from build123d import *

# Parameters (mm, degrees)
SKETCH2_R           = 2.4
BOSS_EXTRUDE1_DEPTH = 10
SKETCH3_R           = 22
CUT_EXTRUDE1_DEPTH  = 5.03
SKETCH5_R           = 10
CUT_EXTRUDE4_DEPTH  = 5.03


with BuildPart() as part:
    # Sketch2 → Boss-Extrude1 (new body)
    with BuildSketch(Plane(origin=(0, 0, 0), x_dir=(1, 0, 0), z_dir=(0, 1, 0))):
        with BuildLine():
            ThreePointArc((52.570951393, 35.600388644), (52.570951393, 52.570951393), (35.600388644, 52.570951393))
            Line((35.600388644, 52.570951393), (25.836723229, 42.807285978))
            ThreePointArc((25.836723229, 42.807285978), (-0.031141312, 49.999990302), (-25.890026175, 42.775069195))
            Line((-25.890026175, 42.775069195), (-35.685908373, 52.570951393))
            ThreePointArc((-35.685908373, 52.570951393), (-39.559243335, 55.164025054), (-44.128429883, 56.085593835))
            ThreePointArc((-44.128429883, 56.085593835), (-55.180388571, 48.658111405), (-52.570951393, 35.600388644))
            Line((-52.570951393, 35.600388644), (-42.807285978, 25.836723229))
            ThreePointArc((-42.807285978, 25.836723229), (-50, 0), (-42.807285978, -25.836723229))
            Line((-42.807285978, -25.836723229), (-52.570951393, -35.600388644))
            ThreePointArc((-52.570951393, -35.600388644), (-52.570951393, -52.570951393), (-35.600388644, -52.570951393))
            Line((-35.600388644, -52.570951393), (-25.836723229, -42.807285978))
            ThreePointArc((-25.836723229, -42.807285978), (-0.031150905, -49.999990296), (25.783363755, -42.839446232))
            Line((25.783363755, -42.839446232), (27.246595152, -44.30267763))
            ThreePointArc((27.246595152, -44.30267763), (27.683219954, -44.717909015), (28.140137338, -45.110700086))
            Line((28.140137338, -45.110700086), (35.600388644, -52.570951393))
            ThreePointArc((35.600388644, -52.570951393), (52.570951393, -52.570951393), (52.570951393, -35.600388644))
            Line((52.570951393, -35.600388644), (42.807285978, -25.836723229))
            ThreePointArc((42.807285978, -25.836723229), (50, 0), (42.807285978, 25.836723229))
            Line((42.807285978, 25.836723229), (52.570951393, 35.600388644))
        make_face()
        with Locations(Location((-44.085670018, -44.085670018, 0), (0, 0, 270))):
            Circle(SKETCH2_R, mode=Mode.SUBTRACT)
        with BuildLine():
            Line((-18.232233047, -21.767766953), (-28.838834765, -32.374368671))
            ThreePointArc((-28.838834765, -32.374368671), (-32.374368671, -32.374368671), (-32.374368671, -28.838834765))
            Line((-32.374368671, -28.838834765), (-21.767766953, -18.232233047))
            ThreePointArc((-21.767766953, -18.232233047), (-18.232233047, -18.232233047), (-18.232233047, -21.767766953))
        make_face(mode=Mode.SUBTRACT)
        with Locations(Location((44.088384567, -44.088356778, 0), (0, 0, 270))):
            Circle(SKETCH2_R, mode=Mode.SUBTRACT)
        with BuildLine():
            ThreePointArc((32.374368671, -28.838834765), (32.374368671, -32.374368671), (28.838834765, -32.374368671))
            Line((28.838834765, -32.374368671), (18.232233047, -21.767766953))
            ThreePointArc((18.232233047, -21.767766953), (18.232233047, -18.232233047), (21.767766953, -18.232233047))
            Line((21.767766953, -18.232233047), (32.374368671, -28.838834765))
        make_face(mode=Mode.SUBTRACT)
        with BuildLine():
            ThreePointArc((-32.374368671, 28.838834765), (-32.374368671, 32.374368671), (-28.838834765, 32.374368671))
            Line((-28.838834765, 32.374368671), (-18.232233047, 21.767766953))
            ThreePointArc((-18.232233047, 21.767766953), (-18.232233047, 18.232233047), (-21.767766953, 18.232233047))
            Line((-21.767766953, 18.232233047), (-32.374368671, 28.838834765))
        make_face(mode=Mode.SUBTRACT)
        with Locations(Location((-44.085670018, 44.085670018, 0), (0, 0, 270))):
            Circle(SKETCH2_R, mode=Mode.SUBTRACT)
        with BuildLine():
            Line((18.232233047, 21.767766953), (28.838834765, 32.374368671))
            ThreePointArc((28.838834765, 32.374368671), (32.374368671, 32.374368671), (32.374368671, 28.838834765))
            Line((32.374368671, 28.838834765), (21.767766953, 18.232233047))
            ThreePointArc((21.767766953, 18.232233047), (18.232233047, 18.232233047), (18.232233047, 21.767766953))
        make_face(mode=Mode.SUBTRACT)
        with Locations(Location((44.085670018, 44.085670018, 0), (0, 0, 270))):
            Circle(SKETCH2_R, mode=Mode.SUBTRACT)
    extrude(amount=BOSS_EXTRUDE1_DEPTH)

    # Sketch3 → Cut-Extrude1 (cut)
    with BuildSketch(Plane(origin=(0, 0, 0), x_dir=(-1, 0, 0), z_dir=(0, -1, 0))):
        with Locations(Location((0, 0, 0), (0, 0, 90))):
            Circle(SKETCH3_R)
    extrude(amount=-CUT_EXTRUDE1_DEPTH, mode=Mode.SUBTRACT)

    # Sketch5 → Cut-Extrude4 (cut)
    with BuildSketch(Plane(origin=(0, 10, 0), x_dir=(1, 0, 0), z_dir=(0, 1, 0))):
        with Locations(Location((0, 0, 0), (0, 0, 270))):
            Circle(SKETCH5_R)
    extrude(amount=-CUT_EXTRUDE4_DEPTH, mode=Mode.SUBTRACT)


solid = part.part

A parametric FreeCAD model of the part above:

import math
import FreeCAD as App
import Part
import Sketcher
from FreeCAD import Vector
Q = App.Units.Quantity

doc = App.newDocument("Part")
params = doc.addObject("Spreadsheet::Sheet", "Params")
for row, (alias, value) in enumerate([
    ("sketch1_radius", "12 mm"),
    ("sketch1_radius2", "50 mm"),
    ("sketch1_diameter", "4.8 mm"),
    ("sketch1_radius3", "2.5 mm"),
    ("sketch1_length", "15 mm"),
    ("pad1_length", "10 mm"),
    ("sketch2_diameter", "44 mm"),
    ("pocket1_length", "5.03 mm"),
    ("sketch3_diameter", "20 mm"),
    ("pocket2_length", "5.03 mm"),
], start=1):
    params.set(f"A{row}", alias)
    params.set(f"B{row}", "=" + value)
    params.setAlias(f"B{row}", alias)

body = doc.addObject("PartDesign::Body", "Body")

# Sketch on XZ plane
sketch1 = doc.addObject("Sketcher::SketchObject", "Sketch")
body.addObject(sketch1)
sketch1.AttachmentSupport = (doc.XZ_Plane, [""])
sketch1.MapMode = "FlatFace"
sketch1.addGeometry([
    Part.ArcOfCircle(Part.Circle(Vector(44.08567, -44.08567, 0), Vector(0, 0, 1), 12), math.radians(-135), math.radians(45)),  # 0
    Part.LineSegment(Vector(35.600389, -52.570951, 0), Vector(25.836723, -42.807286, 0)),  # 1
    Part.ArcOfCircle(Part.Circle(Vector(0, 0, 0), Vector(0, 0, 1), 50), math.radians(-121.18483), math.radians(-58.88654)),  # 2
    Part.LineSegment(Vector(-25.890026, -42.775069, 0), Vector(-35.685908, -52.570951, 0)),  # 3
    Part.ArcOfCircle(Part.Circle(Vector(-44.17119, -44.08567, 0), Vector(0, 0, 1), 12), math.radians(-89.795836), math.radians(-45)),  # 4
    Part.ArcOfCircle(Part.Circle(Vector(-44.08567, -44.08567, 0), Vector(0, 0, 1), 12), math.radians(135), math.radians(269.795836)),  # 5
    Part.LineSegment(Vector(-52.570951, -35.600389, 0), Vector(-42.807286, -25.836723, 0)),  # 6
    Part.ArcOfCircle(Part.Circle(Vector(0, 0, 0), Vector(0, 0, 1), 50), math.radians(148.88654), math.radians(211.11346)),  # 7
    Part.LineSegment(Vector(-42.807286, 25.836723, 0), Vector(-52.570951, 35.600389, 0)),  # 8
    Part.ArcOfCircle(Part.Circle(Vector(-44.08567, 44.08567, 0), Vector(0, 0, 1), 12), math.radians(45), math.radians(225)),  # 9
    Part.LineSegment(Vector(-35.600389, 52.570951, 0), Vector(-25.836723, 42.807286, 0)),  # 10
    Part.ArcOfCircle(Part.Circle(Vector(0, 0, 0), Vector(0, 0, 1), 50), math.radians(58.957933), math.radians(121.11346)),  # 11
    Part.LineSegment(Vector(25.783364, 42.839446, 0), Vector(27.246595, 44.302678, 0)),  # 12
    Part.ArcOfCircle(Part.Circle(Vector(35.731876, 35.817396, 0), Vector(0, 0, 1), 12), math.radians(129.245531), math.radians(135)),  # 13
    Part.LineSegment(Vector(28.140137, 45.1107, 0), Vector(35.600389, 52.570951, 0)),  # 14
    Part.ArcOfCircle(Part.Circle(Vector(44.08567, 44.08567, 0), Vector(0, 0, 1), 12), math.radians(-45), math.radians(135)),  # 15
    Part.LineSegment(Vector(52.570951, 35.600389, 0), Vector(42.807286, 25.836723, 0)),  # 16
    Part.ArcOfCircle(Part.Circle(Vector(0, 0, 0), Vector(0, 0, 1), 50), math.radians(-31.11346), math.radians(31.11346)),  # 17
    Part.LineSegment(Vector(42.807286, -25.836723, 0), Vector(52.570951, -35.600389, 0)),  # 18
    Part.Circle(Vector(-44.08567, 44.08567, 0), Vector(0, 0, 1), 2.4),  # 19
    Part.ArcOfCircle(Part.Circle(Vector(-20, 20, 0), Vector(0, 0, 1), 2.5), math.radians(-135), math.radians(45)),  # 20
    Part.LineSegment(Vector(-18.232233, 21.767767, 0), Vector(-28.838835, 32.374369, 0)),  # 21
    Part.ArcOfCircle(Part.Circle(Vector(-30.606602, 30.606602, 0), Vector(0, 0, 1), 2.5), math.radians(45), math.radians(225)),  # 22
    Part.LineSegment(Vector(-32.374369, 28.838835, 0), Vector(-21.767767, 18.232233, 0)),  # 23
    Part.Circle(Vector(44.088385, 44.088357, 0), Vector(0, 0, 1), 2.4),  # 24
    Part.LineSegment(Vector(21.767767, 18.232233, 0), Vector(32.374369, 28.838835, 0)),  # 25
    Part.ArcOfCircle(Part.Circle(Vector(30.606602, 30.606602, 0), Vector(0, 0, 1), 2.5), math.radians(-45), math.radians(135)),  # 26
    Part.LineSegment(Vector(28.838835, 32.374369, 0), Vector(18.232233, 21.767767, 0)),  # 27
    Part.ArcOfCircle(Part.Circle(Vector(20, 20, 0), Vector(0, 0, 1), 2.5), math.radians(135), math.radians(315)),  # 28
    Part.LineSegment(Vector(-21.767767, -18.232233, 0), Vector(-32.374369, -28.838835, 0)),  # 29
    Part.ArcOfCircle(Part.Circle(Vector(-30.606602, -30.606602, 0), Vector(0, 0, 1), 2.5), math.radians(135), math.radians(315)),  # 30
    Part.LineSegment(Vector(-28.838835, -32.374369, 0), Vector(-18.232233, -21.767767, 0)),  # 31
    Part.ArcOfCircle(Part.Circle(Vector(-20, -20, 0), Vector(0, 0, 1), 2.5), math.radians(-45), math.radians(135)),  # 32
    Part.Circle(Vector(-44.08567, -44.08567, 0), Vector(0, 0, 1), 2.4),  # 33
    Part.ArcOfCircle(Part.Circle(Vector(20, -20, 0), Vector(0, 0, 1), 2.5), math.radians(45), math.radians(225)),  # 34
    Part.LineSegment(Vector(18.232233, -21.767767, 0), Vector(28.838835, -32.374369, 0)),  # 35
    Part.ArcOfCircle(Part.Circle(Vector(30.606602, -30.606602, 0), Vector(0, 0, 1), 2.5), math.radians(-135), math.radians(45)),  # 36
    Part.LineSegment(Vector(32.374369, -28.838835, 0), Vector(21.767767, -18.232233, 0)),  # 37
    Part.Circle(Vector(44.08567, -44.08567, 0), Vector(0, 0, 1), 2.4),  # 38
], False)
sketch1.addConstraint([
    Sketcher.Constraint("Tangent", 0, 1, 1, 1),
    Sketcher.Constraint("Coincident", 1, 2, 2, 2),
    Sketcher.Constraint("Coincident", 2, 1, 3, 1),
    Sketcher.Constraint("Tangent", 3, 2, 4, 2),
    Sketcher.Constraint("Coincident", 4, 1, 5, 2),
    Sketcher.Constraint("Tangent", 5, 1, 6, 1),
    Sketcher.Constraint("Coincident", 6, 2, 7, 2),
    Sketcher.Constraint("Coincident", 7, 1, 8, 1),
    Sketcher.Constraint("Tangent", 8, 2, 9, 2),
    Sketcher.Constraint("Tangent", 9, 1, 10, 1),
    Sketcher.Constraint("Coincident", 10, 2, 11, 2),
    Sketcher.Constraint("Coincident", 11, 1, 12, 1),
    Sketcher.Constraint("Tangent", 12, 2, 13, 2),
    Sketcher.Constraint("Coincident", 13, 1, 14, 1),
    Sketcher.Constraint("Tangent", 14, 2, 15, 2),
    Sketcher.Constraint("Tangent", 15, 1, 16, 1),
    Sketcher.Constraint("Coincident", 16, 2, 17, 2),
    Sketcher.Constraint("Coincident", 17, 1, 18, 1),
    Sketcher.Constraint("Tangent", 18, 2, 0, 2),
    Sketcher.Constraint("Tangent", 20, 2, 21, 1),
    Sketcher.Constraint("Tangent", 21, 2, 22, 1),
    Sketcher.Constraint("Tangent", 22, 2, 23, 1),
    Sketcher.Constraint("Tangent", 23, 2, 20, 1),
    Sketcher.Constraint("Tangent", 25, 2, 26, 1),
    Sketcher.Constraint("Tangent", 26, 2, 27, 1),
    Sketcher.Constraint("Tangent", 27, 2, 28, 1),
    Sketcher.Constraint("Tangent", 28, 2, 25, 1),
    Sketcher.Constraint("Tangent", 29, 2, 30, 1),
    Sketcher.Constraint("Tangent", 30, 2, 31, 1),
    Sketcher.Constraint("Tangent", 31, 2, 32, 1),
    Sketcher.Constraint("Tangent", 32, 2, 29, 1),
    Sketcher.Constraint("Tangent", 34, 2, 35, 1),
    Sketcher.Constraint("Tangent", 35, 2, 36, 1),
    Sketcher.Constraint("Tangent", 36, 2, 37, 1),
    Sketcher.Constraint("Tangent", 37, 2, 34, 1),
    Sketcher.Constraint("Coincident", 2, 3, -1, 1),
    Sketcher.Constraint("Coincident", 7, 3, -1, 1),
    Sketcher.Constraint("Coincident", 11, 3, -1, 1),
    Sketcher.Constraint("Coincident", 17, 3, -1, 1),
    Sketcher.Constraint("Coincident", 19, 3, 9, 3),
    Sketcher.Constraint("Coincident", 33, 3, 5, 3),
    Sketcher.Constraint("Coincident", 38, 3, 0, 3),
    Sketcher.Constraint("Equal", 0, 4),
    Sketcher.Constraint("Equal", 4, 5),
    Sketcher.Constraint("Equal", 2, 7),
    Sketcher.Constraint("Equal", 5, 9),
    Sketcher.Constraint("Equal", 7, 11),
    Sketcher.Constraint("Equal", 9, 13),
    Sketcher.Constraint("Equal", 13, 15),
    Sketcher.Constraint("Equal", 11, 17),
    Sketcher.Constraint("Equal", 20, 22),
    Sketcher.Constraint("Equal", 19, 24),
    Sketcher.Constraint("Equal", 22, 26),
    Sketcher.Constraint("Equal", 26, 28),
    Sketcher.Constraint("Equal", 28, 30),
    Sketcher.Constraint("Equal", 30, 32),
    Sketcher.Constraint("Equal", 24, 33),
    Sketcher.Constraint("Equal", 32, 34),
    Sketcher.Constraint("Equal", 34, 36),
    Sketcher.Constraint("Equal", 33, 38),
    Sketcher.Constraint("Symmetric", 0, 3, 9, 3, -1, 1),
    Sketcher.Constraint("Symmetric", 5, 3, 15, 3, -1, 1),
    Sketcher.Constraint("Symmetric", 26, 3, 30, 3, -1, 1),
    Sketcher.Constraint("Symmetric", 28, 3, 32, 3, -1, 1),
    Sketcher.Constraint("Symmetric", 20, 3, 34, 3, -1, 1),
    Sketcher.Constraint("Symmetric", 22, 3, 36, 3, -1, 1),
    Sketcher.Constraint("Symmetric", 0, 3, 5, 3, -2),
    Sketcher.Constraint("Symmetric", 22, 3, 26, 3, -2),
    Sketcher.Constraint("Symmetric", 20, 3, 28, 3, -2),
    Sketcher.Constraint("Perpendicular", 1, 3),
    Sketcher.Constraint("Parallel", 3, 6),
    Sketcher.Constraint("Perpendicular", 6, 8),
    Sketcher.Constraint("Parallel", 8, 10),
    Sketcher.Constraint("Perpendicular", 10, 12),
    Sketcher.Constraint("Parallel", 12, 14),
    Sketcher.Constraint("Parallel", 14, 16),
    Sketcher.Constraint("Perpendicular", 16, 18),
    Sketcher.Constraint("Parallel", 18, 21),
    Sketcher.Constraint("Perpendicular", 23, 25),
    Sketcher.Constraint("Horizontal", 0, 3, 4, 3),
    Sketcher.Constraint("Equal", 1, 6),
    Sketcher.Constraint("Radius", 0, Q("12 mm")),
    Sketcher.Constraint("Radius", 2, Q("50 mm")),
    Sketcher.Constraint("Diameter", 19, Q("4.8 mm")),
    Sketcher.Constraint("Radius", 20, Q("2.5 mm")),
    Sketcher.Constraint("Distance", 21, Q("15 mm")),
    Sketcher.Constraint("DistanceX", 20, 3, -1, 1, Q("20 mm")),
    Sketcher.Constraint("DistanceY", -1, 1, 20, 3, Q("20 mm")),
    Sketcher.Constraint("DistanceY", -1, 1, 13, 1, Q("45.1107 mm")),
    Sketcher.Constraint("DistanceY", 5, 3, 2, 1, Q("1.310601 mm")),
    Sketcher.Constraint("DistanceX", 16, 2, 24, 3, Q("1.281099 mm")),
    Sketcher.Constraint("DistanceX", 5, 3, 29, 2, Q("11.711301 mm")),
    Sketcher.Constraint("Distance", 12, Q("2.069322 mm")),
    Sketcher.Constraint("DistanceY", 13, 3, 24, 3, Q("8.27096 mm")),
])
sketch1.setExpression("Constraints[81]", "Params.sketch1_radius")
sketch1.setExpression("Constraints[82]", "Params.sketch1_radius2")
sketch1.setExpression("Constraints[83]", "Params.sketch1_diameter")
sketch1.setExpression("Constraints[84]", "Params.sketch1_radius3")
sketch1.setExpression("Constraints[85]", "Params.sketch1_length")
pad1 = doc.addObject("PartDesign::Pad", "Pad")
body.addObject(pad1)
pad1.Profile = sketch1
pad1.setExpression("Length", "Params.pad1_length")
pad1.Reversed = True

# Sketch on XZ plane
sketch2 = doc.addObject("Sketcher::SketchObject", "Sketch001")
body.addObject(sketch2)
sketch2.AttachmentSupport = (doc.XZ_Plane, [""])
sketch2.MapMode = "FlatFace"
sketch2.addGeometry(Part.Circle(Vector(0, 0, 0), Vector(0, 0, 1), 22), False)
sketch2.addConstraint([
    Sketcher.Constraint("Coincident", 0, 3, -1, 1),
    Sketcher.Constraint("Diameter", 0, Q("44 mm")),
])
sketch2.setExpression("Constraints[1]", "Params.sketch2_diameter")
pocket1 = doc.addObject("PartDesign::Pocket", "Pocket")
body.addObject(pocket1)
pocket1.Profile = sketch2
pocket1.setExpression("Length", "Params.pocket1_length")

# Sketch on XZ plane
sketch3 = doc.addObject("Sketcher::SketchObject", "Sketch002")
body.addObject(sketch3)
sketch3.AttachmentSupport = (doc.XZ_Plane, [""])
sketch3.MapMode = "FlatFace"
sketch3.AttachmentOffset = App.Placement(Vector(0, 0, -10), App.Rotation())
sketch3.addGeometry(Part.Circle(Vector(0, 0, 0), Vector(0, 0, 1), 10), False)
sketch3.addConstraint([
    Sketcher.Constraint("Coincident", 0, 3, -1, 1),
    Sketcher.Constraint("Diameter", 0, Q("20 mm")),
])
sketch3.setExpression("Constraints[1]", "Params.sketch3_diameter")
pocket2 = doc.addObject("PartDesign::Pocket", "Pocket001")
body.addObject(pocket2)
pocket2.Profile = sketch3
pocket2.setExpression("Length", "Params.pocket2_length")
pocket2.Reversed = True

doc.recompute()
